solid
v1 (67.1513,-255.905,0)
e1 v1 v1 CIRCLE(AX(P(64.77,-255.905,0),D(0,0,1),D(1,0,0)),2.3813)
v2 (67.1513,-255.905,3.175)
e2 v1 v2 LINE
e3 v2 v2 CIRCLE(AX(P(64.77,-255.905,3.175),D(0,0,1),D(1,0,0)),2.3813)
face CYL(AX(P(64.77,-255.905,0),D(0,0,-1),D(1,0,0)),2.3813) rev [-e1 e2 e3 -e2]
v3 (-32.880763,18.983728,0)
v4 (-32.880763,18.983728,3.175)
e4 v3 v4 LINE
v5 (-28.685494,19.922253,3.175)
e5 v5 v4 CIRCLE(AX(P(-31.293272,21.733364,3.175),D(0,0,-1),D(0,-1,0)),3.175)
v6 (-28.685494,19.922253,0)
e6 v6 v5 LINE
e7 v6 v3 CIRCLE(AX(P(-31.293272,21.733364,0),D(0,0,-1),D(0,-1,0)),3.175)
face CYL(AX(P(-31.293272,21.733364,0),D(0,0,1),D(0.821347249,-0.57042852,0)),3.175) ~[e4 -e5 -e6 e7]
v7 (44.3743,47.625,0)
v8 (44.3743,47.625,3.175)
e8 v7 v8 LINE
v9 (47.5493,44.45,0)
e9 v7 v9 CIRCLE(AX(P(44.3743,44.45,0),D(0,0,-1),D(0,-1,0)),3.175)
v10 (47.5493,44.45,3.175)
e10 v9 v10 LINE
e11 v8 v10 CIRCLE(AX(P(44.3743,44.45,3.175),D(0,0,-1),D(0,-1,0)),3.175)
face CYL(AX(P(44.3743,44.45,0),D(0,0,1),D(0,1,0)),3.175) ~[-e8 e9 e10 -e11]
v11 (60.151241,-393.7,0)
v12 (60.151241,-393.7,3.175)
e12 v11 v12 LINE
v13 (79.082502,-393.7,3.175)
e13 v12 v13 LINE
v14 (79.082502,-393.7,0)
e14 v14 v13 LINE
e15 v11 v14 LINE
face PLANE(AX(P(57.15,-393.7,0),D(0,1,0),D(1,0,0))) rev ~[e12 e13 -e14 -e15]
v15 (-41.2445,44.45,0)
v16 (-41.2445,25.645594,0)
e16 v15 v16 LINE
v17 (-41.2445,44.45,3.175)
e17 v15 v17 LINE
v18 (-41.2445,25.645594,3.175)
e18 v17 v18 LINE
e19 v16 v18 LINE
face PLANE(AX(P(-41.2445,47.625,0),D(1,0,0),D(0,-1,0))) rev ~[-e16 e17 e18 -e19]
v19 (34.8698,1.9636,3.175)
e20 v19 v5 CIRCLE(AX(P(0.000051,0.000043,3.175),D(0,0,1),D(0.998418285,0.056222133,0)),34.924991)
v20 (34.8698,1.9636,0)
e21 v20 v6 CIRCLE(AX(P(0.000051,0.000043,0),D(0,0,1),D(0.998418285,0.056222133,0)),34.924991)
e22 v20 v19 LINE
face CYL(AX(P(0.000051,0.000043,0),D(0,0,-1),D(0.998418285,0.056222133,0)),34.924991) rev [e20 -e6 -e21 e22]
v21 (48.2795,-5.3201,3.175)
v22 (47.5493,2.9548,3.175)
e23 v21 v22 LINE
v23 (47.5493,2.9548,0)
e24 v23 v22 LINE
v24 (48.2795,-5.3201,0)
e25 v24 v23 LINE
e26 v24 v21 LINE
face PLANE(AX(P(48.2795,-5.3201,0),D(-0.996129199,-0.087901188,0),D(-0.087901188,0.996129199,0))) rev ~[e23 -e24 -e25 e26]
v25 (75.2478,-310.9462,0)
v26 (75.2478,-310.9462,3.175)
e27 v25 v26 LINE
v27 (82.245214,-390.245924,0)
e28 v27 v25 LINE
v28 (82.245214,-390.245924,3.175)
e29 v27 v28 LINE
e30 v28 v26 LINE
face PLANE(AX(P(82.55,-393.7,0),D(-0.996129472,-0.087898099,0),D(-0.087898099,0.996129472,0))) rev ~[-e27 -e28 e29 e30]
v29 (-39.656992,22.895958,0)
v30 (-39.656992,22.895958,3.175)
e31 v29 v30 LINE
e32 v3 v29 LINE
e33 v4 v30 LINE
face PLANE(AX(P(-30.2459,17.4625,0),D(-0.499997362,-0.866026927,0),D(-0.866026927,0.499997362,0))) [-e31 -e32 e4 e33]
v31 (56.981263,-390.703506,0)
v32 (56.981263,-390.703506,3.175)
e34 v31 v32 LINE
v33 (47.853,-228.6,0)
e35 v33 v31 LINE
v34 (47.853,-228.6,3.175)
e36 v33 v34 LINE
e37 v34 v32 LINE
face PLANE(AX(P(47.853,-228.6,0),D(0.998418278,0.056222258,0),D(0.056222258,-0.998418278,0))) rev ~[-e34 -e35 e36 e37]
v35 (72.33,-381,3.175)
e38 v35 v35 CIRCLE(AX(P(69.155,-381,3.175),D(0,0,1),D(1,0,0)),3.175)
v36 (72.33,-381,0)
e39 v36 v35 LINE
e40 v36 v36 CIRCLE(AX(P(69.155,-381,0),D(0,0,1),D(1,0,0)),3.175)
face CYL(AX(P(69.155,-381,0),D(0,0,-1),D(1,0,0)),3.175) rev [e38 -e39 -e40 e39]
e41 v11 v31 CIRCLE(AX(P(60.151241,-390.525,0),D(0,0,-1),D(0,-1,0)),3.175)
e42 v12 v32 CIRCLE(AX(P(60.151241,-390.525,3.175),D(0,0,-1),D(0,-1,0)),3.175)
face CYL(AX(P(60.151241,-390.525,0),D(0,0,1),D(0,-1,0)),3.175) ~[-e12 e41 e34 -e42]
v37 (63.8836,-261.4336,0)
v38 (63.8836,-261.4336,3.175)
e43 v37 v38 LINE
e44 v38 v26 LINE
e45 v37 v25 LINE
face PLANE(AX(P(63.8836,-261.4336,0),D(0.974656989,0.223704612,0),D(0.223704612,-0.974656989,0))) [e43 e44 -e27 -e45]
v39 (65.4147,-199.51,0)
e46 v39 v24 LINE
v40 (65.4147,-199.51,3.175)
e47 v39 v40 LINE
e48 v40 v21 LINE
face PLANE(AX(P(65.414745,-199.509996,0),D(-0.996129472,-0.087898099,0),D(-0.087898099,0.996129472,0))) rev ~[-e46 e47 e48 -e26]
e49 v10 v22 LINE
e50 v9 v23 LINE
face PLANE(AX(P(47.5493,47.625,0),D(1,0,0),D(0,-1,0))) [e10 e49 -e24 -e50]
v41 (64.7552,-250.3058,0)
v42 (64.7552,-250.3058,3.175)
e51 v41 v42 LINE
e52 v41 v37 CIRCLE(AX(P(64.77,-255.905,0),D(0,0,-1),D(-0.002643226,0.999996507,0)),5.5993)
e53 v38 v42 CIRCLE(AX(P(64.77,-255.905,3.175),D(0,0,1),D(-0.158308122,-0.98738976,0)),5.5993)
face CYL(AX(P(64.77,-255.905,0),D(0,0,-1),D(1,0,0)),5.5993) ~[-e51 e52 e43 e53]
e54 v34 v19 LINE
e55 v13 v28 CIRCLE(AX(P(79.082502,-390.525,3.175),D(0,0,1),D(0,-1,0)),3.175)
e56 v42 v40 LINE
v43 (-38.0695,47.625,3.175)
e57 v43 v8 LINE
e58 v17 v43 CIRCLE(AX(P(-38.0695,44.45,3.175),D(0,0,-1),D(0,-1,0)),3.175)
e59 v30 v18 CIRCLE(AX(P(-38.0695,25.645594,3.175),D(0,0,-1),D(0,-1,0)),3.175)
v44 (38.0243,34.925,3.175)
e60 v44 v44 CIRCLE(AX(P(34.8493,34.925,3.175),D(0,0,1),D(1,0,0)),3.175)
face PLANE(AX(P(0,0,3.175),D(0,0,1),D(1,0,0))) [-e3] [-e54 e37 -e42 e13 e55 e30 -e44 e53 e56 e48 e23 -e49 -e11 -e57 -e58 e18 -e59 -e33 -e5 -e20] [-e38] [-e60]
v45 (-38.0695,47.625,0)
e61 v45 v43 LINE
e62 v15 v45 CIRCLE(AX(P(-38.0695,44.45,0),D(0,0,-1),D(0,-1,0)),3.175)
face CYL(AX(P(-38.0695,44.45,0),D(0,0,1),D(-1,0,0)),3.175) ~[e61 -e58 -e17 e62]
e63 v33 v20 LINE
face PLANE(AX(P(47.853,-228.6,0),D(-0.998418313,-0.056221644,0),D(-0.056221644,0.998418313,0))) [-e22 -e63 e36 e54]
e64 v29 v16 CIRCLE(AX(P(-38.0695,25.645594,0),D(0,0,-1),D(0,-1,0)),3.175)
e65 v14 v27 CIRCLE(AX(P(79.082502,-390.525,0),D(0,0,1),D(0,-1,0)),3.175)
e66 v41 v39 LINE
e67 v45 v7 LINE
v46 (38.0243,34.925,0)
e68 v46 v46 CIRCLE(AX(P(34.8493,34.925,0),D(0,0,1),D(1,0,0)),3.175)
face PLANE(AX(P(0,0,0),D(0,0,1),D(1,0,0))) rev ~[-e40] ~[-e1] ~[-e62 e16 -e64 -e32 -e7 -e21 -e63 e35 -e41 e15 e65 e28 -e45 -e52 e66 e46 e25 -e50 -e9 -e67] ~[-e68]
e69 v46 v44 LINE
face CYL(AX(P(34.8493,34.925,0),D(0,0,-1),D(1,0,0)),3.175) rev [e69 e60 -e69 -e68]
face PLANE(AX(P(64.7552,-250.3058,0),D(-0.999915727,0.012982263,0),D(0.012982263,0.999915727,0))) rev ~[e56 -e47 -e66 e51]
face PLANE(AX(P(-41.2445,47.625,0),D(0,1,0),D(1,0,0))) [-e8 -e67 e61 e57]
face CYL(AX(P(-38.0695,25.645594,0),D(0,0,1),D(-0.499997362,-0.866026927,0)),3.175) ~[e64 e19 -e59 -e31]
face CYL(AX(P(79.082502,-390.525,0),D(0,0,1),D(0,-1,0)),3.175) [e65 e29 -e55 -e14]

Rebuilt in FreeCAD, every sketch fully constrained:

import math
import FreeCAD as App
import Part
import Sketcher

V = App.Vector
Q = App.Units.Quantity


def edges_at(feature, points):
    """Names of the edges that pass closest to the given points."""
    edges = feature.Shape.Edges
    near = lambda p: min(range(len(edges)), key=lambda i: edges[i].distToShape(Part.Vertex(*p))[0])
    return sorted({f"Edge{near(p) + 1}" for p in points})

doc = App.newDocument("Part")
body = doc.addObject("PartDesign::Body", "Body")

sketch1 = doc.addObject("Sketcher::SketchObject", "Sketch")
body.addObject(sketch1)
sketch1.AttachmentSupport = (doc.XY_Plane, [""])
sketch1.MapMode = "FlatFace"
sketch1.addGeometry(Part.LineSegment(V(57.1, -393.7, 0), V(82.5, -393.7, 0)), False)
sketch1.addGeometry(Part.LineSegment(V(82.5, -393.7, 0), V(75.2, -310.9, 0)), False)
sketch1.addGeometry(Part.LineSegment(V(75.2, -310.9, 0), V(63.9, -261.4, 0)), False)
sketch1.addGeometry(Part.ArcOfCircle(Part.Circle(V(64.8, -255.9, 0), V(0, 0, 1), 5.6), math.radians(-99), math.radians(90)), False)
sketch1.addGeometry(Part.LineSegment(V(64.8, -250.3, 0), V(65.4, -199.5, 0)), False)
sketch1.addGeometry(Part.LineSegment(V(65.4, -199.5, 0), V(48.3, -5.3, 0)), False)
sketch1.addGeometry(Part.LineSegment(V(48.3, -5.3, 0), V(47.5, 3, 0)), False)
sketch1.addGeometry(Part.LineSegment(V(47.5, 3, 0), V(47.5, 47.6, 0)), False)
sketch1.addGeometry(Part.LineSegment(V(47.5, 47.6, 0), V(-41.2, 47.6, 0)), False)
sketch1.addGeometry(Part.LineSegment(V(-41.2, 47.6, 0), V(-41.2, 23.8, 0)), False)
sketch1.addGeometry(Part.LineSegment(V(-41.2, 23.8, 0), V(-30.2, 17.5, 0)), False)
sketch1.addGeometry(Part.ArcOfCircle(Part.Circle(V(0, 0, 0), V(0, 0, 1), 34.9), math.radians(3), math.radians(150)), False)
sketch1.addGeometry(Part.LineSegment(V(34.9, 2, 0), V(47.9, -228.6, 0)), False)
sketch1.addGeometry(Part.LineSegment(V(47.9, -228.6, 0), V(57.1, -393.7, 0)), False)
sketch1.addGeometry(Part.Circle(V(69.2, -381, 0), V(0, 0, 1), 3.2), False)
sketch1.addGeometry(Part.Circle(V(34.8, 34.9, 0), V(0, 0, 1), 3.2), False)
sketch1.addGeometry(Part.Circle(V(64.8, -255.9, 0), V(0, 0, 1), 2.4), False)
sketch1.addConstraint(Sketcher.Constraint("Coincident", 0, 2, 1, 1))
sketch1.addConstraint(Sketcher.Constraint("Coincident", 1, 2, 2, 1))
sketch1.addConstraint(Sketcher.Constraint("Coincident", 2, 2, 3, 1))
sketch1.addConstraint(Sketcher.Constraint("Coincident", 3, 2, 4, 1))
sketch1.addConstraint(Sketcher.Constraint("Coincident", 4, 2, 5, 1))
sketch1.addConstraint(Sketcher.Constraint("Coincident", 5, 2, 6, 1))
sketch1.addConstraint(Sketcher.Constraint("Coincident", 6, 2, 7, 1))
sketch1.addConstraint(Sketcher.Constraint("Coincident", 7, 2, 8, 1))
sketch1.addConstraint(Sketcher.Constraint("Coincident", 8, 2, 9, 1))
sketch1.addConstraint(Sketcher.Constraint("Coincident", 9, 2, 10, 1))
sketch1.addConstraint(Sketcher.Constraint("Coincident", 10, 2, 11, 2))
sketch1.addConstraint(Sketcher.Constraint("Tangent", 11, 1, 12, 1))
sketch1.addConstraint(Sketcher.Constraint("Coincident", 12, 2, 13, 1))
sketch1.addConstraint(Sketcher.Constraint("Coincident", 13, 2, 0, 1))
sketch1.addConstraint(Sketcher.Constraint("Horizontal", 0))
sketch1.addConstraint(Sketcher.Constraint("Vertical", 7))
sketch1.addConstraint(Sketcher.Constraint("Horizontal", 8))
sketch1.addConstraint(Sketcher.Constraint("Vertical", 9))
sketch1.addConstraint(Sketcher.Constraint("Coincident", 11, 3, -1, 1))
sketch1.addConstraint(Sketcher.Constraint("Coincident", 16, 3, 3, 3))
sketch1.addConstraint(Sketcher.Constraint("Equal", 14, 15))
sketch1.addConstraint(Sketcher.Constraint("Parallel", 1, 5))
sketch1.addConstraint(Sketcher.Constraint("Parallel", 5, 6))
sketch1.addConstraint(Sketcher.Constraint("Parallel", 12, 13))
sketch1.addConstraint(Sketcher.Constraint("Equal", 2, 4))
sketch1.addConstraint(Sketcher.Constraint("Diameter", 14, Q("0.25 in")))
sketch1.addConstraint(Sketcher.Constraint("DistanceX", 0, 1, 0, 2, Q("1 in")))
sketch1.addConstraint(Sketcher.Constraint("Distance", 2, Q("2 in")))
sketch1.addConstraint(Sketcher.Constraint("Diameter", 16, Q("0.1875 in")))
sketch1.addConstraint(Sketcher.Constraint("Angle", 10, Q("-29.9998 deg")))
sketch1.addConstraint(Sketcher.Constraint("Radius", 11, Q("1.375 in")))
sketch1.addConstraint(Sketcher.Constraint("Distance", 10, Q("0.5 in")))
sketch1.addConstraint(Sketcher.Constraint("DistanceY", 0, 2, -1, 1, Q("15.5 in")))
sketch1.addConstraint(Sketcher.Constraint("DistanceY", 0, 2, 14, 3, Q("0.5 in")))
sketch1.addConstraint(Sketcher.Constraint("DistanceX", 15, 3, 6, 2, Q("0.5 in")))
sketch1.addConstraint(Sketcher.Constraint("DistanceY", 15, 3, 7, 2, Q("0.5 in")))
sketch1.addConstraint(Sketcher.Constraint("DistanceX", 13, 2, 3, 3, Q("0.3 in")))
sketch1.addConstraint(Sketcher.Constraint("DistanceX", -1, 1, 13, 2, Q("2.25 in")))
sketch1.addConstraint(Sketcher.Constraint("DistanceY", 12, 2, -1, 1, Q("9 in")))
sketch1.addConstraint(Sketcher.Constraint("DistanceY", 0, 2, 3, 3, Q("5.425 in")))
sketch1.addConstraint(Sketcher.Constraint("DistanceY", 9, 2, 9, 1, Q("0.9375 in")))
sketch1.addConstraint(Sketcher.Constraint("Radius", 3, 5.5993))
sketch1.addConstraint(Sketcher.Constraint("DistanceY", 3, 3, 15, 3, Q("11.45 in")))
sketch1.addConstraint(Sketcher.Constraint("DistanceX", 8, 2, 8, 1, 88.7938))
sketch1.addConstraint(Sketcher.Constraint("DistanceY", 7, 1, 7, 2, 44.6702))
sketch1.addConstraint(Sketcher.Constraint("DistanceX", -1, 1, 2, 2, Q("2.5151 in")))
sketch1.addConstraint(Sketcher.Constraint("DistanceX", 2, 2, 1, 2, Q("0.4474 in")))
sketch1.addConstraint(Sketcher.Constraint("DistanceX", 3, 2, 1, 2, Q("0.4131 in")))
sketch1.addConstraint(Sketcher.Constraint("DistanceY", 3, 2, 5, 2, Q("9.6451 in")))
sketch1.addConstraint(Sketcher.Constraint("DistanceX", -1, 1, 14, 3, 69.155))
pad1 = doc.addObject("PartDesign::Pad", "Pad")
body.addObject(pad1)
pad1.Profile = sketch1
pad1.Length = Q("0.125 in")
doc.recompute()

fillet = doc.addObject("PartDesign::Fillet", "Fillet")
body.addObject(fillet)
fillet.Base = (pad1, edges_at(pad1, [
    (-30.246, 17.462, 1.587),
    (47.549, 47.625, 1.587),
    (-41.245, 47.625, 1.587),
    (82.55, -393.7, 1.587),
    (57.15, -393.7, 1.587),
    (-41.245, 23.812, 1.587),
]))
fillet.Radius = Q("0.125 in")

doc.recompute()
